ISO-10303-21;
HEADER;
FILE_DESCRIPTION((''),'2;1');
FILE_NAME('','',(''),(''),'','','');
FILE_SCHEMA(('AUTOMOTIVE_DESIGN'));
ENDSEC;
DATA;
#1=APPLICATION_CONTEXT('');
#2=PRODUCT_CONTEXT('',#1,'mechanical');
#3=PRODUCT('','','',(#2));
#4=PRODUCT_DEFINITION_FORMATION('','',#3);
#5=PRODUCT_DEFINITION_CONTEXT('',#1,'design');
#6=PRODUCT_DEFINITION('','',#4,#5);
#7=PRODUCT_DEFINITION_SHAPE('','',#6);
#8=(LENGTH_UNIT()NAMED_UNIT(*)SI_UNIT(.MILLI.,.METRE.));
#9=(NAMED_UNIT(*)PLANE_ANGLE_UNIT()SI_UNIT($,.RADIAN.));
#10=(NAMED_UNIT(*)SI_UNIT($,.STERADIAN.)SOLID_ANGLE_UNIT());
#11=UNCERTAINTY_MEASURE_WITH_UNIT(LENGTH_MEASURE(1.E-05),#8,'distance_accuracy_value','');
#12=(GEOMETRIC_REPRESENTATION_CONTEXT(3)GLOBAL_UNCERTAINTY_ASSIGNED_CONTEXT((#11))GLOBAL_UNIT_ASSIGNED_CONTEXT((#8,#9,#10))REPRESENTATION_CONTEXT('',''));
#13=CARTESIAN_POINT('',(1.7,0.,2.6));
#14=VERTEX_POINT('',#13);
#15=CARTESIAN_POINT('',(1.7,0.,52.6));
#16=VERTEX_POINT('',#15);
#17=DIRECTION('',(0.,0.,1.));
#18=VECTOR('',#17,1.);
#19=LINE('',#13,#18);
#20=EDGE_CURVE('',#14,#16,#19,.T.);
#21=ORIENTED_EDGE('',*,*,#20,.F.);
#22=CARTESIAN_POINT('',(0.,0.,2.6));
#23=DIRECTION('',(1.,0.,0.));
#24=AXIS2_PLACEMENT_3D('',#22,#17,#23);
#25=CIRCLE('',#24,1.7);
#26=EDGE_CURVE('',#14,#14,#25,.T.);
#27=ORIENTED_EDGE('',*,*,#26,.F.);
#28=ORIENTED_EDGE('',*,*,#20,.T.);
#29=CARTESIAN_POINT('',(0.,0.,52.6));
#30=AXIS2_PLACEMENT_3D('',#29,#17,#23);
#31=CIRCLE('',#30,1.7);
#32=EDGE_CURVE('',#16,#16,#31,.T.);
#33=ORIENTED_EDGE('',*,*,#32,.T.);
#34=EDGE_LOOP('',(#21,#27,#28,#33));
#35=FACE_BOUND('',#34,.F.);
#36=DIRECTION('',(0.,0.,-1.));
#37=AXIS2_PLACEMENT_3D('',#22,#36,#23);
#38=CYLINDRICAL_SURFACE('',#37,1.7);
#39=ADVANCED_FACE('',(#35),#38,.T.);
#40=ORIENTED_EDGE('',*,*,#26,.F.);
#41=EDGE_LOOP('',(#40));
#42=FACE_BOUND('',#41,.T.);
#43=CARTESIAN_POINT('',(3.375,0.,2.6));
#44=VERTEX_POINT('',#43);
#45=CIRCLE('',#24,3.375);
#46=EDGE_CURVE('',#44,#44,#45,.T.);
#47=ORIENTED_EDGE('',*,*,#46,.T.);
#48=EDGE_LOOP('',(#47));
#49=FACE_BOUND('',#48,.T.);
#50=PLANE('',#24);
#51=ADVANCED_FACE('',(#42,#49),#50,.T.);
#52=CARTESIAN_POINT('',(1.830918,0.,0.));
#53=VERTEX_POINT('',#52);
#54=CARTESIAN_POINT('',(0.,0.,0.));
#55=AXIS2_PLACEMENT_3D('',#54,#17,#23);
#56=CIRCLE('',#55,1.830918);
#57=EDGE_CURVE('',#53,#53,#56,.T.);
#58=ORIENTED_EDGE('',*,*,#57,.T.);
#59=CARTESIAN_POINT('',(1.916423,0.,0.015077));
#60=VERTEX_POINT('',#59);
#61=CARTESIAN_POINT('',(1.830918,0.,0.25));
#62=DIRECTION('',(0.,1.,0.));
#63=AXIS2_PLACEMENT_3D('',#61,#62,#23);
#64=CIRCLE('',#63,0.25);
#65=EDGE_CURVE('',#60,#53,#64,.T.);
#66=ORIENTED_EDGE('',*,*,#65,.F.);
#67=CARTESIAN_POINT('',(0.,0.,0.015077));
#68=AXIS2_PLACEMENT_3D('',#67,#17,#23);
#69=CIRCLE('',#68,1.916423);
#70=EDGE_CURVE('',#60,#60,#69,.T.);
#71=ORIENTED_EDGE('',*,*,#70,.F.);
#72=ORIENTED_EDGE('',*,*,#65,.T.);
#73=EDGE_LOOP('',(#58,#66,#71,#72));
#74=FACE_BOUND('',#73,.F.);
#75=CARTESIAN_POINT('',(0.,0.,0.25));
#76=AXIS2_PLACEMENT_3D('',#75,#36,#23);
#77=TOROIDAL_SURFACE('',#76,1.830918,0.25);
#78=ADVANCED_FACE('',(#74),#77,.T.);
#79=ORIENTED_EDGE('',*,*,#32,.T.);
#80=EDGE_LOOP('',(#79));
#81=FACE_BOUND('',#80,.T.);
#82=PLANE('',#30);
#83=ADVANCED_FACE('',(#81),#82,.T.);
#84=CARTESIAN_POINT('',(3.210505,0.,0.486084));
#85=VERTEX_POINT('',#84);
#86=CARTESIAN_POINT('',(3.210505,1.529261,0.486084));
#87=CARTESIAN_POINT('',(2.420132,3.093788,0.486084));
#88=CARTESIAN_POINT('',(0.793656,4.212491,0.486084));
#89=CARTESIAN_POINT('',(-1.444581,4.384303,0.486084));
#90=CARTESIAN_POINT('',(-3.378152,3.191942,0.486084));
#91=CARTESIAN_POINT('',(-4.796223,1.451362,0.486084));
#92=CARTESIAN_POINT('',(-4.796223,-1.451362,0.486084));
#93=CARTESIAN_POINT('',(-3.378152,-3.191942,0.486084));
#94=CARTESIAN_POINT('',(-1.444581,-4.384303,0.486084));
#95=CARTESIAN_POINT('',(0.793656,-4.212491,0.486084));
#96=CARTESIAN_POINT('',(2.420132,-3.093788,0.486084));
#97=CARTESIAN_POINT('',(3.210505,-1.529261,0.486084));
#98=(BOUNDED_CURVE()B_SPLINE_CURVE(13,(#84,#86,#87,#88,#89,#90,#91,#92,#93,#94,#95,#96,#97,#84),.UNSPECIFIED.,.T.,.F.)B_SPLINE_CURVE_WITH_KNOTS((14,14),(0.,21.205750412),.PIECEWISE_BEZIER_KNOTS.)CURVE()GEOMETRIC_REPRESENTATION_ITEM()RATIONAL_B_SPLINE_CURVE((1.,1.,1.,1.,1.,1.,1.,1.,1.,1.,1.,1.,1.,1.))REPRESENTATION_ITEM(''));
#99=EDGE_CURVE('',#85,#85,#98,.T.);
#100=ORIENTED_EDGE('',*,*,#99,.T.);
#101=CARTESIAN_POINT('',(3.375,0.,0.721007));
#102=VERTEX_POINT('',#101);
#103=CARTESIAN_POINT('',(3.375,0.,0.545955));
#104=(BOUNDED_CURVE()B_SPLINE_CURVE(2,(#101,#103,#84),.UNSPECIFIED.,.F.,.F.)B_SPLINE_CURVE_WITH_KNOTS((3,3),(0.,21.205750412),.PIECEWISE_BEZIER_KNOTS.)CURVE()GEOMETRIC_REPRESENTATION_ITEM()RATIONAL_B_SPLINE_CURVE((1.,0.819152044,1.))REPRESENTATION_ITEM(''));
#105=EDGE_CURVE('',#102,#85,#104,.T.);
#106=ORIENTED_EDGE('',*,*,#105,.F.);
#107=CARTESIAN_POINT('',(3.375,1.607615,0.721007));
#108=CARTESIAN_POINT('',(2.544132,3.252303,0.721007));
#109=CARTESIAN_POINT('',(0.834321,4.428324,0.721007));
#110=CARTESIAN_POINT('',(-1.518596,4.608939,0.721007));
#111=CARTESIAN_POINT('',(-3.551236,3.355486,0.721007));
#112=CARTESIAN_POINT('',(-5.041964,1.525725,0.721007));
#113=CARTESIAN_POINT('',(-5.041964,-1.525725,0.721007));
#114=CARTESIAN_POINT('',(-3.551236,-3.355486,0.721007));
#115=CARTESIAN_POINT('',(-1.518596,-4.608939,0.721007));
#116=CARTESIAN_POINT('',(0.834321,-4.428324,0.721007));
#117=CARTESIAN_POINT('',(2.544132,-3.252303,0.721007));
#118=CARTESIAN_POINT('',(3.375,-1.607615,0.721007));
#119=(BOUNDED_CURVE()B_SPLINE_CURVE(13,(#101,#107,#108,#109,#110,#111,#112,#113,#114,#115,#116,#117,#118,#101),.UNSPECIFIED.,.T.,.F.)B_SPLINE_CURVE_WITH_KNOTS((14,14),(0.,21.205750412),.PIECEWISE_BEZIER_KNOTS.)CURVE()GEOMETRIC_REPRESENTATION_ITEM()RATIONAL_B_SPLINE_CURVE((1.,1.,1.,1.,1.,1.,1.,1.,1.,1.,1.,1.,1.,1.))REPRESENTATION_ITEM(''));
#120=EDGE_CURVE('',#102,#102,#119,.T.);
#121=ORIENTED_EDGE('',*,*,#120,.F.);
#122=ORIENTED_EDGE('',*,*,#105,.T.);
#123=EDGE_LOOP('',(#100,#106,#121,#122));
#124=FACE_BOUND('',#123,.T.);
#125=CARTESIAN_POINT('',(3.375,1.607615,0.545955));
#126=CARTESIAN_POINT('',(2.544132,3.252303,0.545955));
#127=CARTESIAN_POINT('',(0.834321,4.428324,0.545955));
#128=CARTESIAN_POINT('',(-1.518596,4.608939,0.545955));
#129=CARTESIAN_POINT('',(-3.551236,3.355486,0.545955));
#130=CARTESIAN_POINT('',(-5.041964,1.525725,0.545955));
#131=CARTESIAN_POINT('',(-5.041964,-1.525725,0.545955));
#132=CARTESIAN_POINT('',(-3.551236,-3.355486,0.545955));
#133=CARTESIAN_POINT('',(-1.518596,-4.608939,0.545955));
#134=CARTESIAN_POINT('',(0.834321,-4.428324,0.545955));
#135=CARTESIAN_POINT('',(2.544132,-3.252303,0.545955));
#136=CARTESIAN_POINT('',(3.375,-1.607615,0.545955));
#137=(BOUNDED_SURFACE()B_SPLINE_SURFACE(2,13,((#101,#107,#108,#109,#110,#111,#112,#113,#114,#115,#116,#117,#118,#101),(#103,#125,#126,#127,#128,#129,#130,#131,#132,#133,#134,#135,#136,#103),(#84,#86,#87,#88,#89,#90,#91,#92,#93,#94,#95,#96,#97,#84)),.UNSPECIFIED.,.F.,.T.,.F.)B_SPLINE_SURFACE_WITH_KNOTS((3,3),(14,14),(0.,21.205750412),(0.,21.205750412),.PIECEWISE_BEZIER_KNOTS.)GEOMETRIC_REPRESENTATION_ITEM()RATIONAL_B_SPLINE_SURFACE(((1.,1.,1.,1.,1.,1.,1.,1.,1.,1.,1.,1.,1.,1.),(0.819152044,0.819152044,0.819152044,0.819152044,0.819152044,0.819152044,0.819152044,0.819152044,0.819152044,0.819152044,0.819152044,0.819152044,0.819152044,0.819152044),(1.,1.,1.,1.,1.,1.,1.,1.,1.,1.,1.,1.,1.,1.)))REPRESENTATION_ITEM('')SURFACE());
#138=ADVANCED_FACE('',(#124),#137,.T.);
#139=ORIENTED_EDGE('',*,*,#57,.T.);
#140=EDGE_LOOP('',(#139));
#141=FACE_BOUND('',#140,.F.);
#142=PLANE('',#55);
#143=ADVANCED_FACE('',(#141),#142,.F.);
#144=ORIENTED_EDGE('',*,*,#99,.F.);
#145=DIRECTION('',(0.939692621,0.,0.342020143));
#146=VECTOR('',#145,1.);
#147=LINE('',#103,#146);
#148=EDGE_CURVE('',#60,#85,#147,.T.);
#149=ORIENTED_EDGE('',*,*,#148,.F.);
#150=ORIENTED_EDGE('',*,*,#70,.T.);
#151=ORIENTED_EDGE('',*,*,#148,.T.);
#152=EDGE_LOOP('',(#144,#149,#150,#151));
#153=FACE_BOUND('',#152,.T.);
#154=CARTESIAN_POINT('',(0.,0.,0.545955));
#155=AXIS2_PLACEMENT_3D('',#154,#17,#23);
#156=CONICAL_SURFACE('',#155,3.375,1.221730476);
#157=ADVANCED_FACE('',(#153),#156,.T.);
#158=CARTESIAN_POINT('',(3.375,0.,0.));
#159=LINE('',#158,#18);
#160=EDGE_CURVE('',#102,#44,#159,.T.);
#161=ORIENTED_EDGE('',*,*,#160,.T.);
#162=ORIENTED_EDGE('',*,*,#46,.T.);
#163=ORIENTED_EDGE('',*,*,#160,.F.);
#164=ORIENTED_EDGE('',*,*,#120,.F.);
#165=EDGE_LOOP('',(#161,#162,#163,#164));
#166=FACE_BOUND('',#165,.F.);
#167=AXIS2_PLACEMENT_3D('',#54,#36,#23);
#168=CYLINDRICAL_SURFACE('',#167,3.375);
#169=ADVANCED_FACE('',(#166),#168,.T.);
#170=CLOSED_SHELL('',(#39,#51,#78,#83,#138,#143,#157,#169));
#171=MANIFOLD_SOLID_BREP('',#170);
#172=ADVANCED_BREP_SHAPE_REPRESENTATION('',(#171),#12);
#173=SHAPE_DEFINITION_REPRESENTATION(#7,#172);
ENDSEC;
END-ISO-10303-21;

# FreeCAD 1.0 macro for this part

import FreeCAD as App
import Part
import Sketcher
from FreeCAD import Vector


def edges_at(feature, points):
    """Names of the edges that pass closest to the given points."""
    edges = feature.Shape.Edges
    near = lambda p: min(range(len(edges)), key=lambda i: edges[i].distToShape(Part.Vertex(*p))[0])
    return sorted({f"Edge{near(p) + 1}" for p in points})

doc = App.newDocument("Part")
body = doc.addObject("PartDesign::Body", "Body")

sketch1 = doc.addObject("Sketcher::SketchObject", "Sketch")
body.addObject(sketch1)
sketch1.AttachmentSupport = (doc.XY_Plane, [""])
sketch1.MapMode = "FlatFace"
sketch1.addGeometry(Part.Circle(Vector(0, 0, 0), Vector(0, 0, 1), 3.4), False)
sketch1.addConstraint([
    Sketcher.Constraint("Coincident", 0, 3, -1, 1),
    Sketcher.Constraint("Diameter", 0, 6.75),
])
pad1 = doc.addObject("PartDesign::Pad", "Pad")
body.addObject(pad1)
pad1.Profile = sketch1
pad1.Length = 2.6

sketch2 = doc.addObject("Sketcher::SketchObject", "Sketch001")
body.addObject(sketch2)
sketch2.AttachmentSupport = (doc.XY_Plane, [""])
sketch2.MapMode = "FlatFace"
sketch2.AttachmentOffset = App.Placement(Vector(0, 0, 2.6), App.Rotation())
sketch2.addGeometry(Part.Circle(Vector(0, 0, 0), Vector(0, 0, 1), 1.7), False)
sketch2.addConstraint([
    Sketcher.Constraint("Coincident", 0, 3, -1, 1),
    Sketcher.Constraint("Diameter", 0, 3.4),
])
pad2 = doc.addObject("PartDesign::Pad", "Pad001")
body.addObject(pad2)
pad2.Profile = sketch2
pad2.Length = 50
doc.recompute()

chamfer = doc.addObject("PartDesign::Chamfer", "Chamfer")
body.addObject(chamfer)
chamfer.Base = (pad2, edges_at(pad2, [(-3.375, 0, 0)]))
chamfer.ChamferType = "Distance and Angle"
chamfer.Size = 1.5
chamfer.Angle = 20
chamfer.FlipDirection = True
doc.recompute()

fillet = doc.addObject("PartDesign::Fillet", "Fillet")
body.addObject(fillet)
fillet.Base = (chamfer, edges_at(chamfer, [(-3.375, 0, 0.546), (-1.875, 0, 0)]))
fillet.Radius = 0.25

doc.recompute()
